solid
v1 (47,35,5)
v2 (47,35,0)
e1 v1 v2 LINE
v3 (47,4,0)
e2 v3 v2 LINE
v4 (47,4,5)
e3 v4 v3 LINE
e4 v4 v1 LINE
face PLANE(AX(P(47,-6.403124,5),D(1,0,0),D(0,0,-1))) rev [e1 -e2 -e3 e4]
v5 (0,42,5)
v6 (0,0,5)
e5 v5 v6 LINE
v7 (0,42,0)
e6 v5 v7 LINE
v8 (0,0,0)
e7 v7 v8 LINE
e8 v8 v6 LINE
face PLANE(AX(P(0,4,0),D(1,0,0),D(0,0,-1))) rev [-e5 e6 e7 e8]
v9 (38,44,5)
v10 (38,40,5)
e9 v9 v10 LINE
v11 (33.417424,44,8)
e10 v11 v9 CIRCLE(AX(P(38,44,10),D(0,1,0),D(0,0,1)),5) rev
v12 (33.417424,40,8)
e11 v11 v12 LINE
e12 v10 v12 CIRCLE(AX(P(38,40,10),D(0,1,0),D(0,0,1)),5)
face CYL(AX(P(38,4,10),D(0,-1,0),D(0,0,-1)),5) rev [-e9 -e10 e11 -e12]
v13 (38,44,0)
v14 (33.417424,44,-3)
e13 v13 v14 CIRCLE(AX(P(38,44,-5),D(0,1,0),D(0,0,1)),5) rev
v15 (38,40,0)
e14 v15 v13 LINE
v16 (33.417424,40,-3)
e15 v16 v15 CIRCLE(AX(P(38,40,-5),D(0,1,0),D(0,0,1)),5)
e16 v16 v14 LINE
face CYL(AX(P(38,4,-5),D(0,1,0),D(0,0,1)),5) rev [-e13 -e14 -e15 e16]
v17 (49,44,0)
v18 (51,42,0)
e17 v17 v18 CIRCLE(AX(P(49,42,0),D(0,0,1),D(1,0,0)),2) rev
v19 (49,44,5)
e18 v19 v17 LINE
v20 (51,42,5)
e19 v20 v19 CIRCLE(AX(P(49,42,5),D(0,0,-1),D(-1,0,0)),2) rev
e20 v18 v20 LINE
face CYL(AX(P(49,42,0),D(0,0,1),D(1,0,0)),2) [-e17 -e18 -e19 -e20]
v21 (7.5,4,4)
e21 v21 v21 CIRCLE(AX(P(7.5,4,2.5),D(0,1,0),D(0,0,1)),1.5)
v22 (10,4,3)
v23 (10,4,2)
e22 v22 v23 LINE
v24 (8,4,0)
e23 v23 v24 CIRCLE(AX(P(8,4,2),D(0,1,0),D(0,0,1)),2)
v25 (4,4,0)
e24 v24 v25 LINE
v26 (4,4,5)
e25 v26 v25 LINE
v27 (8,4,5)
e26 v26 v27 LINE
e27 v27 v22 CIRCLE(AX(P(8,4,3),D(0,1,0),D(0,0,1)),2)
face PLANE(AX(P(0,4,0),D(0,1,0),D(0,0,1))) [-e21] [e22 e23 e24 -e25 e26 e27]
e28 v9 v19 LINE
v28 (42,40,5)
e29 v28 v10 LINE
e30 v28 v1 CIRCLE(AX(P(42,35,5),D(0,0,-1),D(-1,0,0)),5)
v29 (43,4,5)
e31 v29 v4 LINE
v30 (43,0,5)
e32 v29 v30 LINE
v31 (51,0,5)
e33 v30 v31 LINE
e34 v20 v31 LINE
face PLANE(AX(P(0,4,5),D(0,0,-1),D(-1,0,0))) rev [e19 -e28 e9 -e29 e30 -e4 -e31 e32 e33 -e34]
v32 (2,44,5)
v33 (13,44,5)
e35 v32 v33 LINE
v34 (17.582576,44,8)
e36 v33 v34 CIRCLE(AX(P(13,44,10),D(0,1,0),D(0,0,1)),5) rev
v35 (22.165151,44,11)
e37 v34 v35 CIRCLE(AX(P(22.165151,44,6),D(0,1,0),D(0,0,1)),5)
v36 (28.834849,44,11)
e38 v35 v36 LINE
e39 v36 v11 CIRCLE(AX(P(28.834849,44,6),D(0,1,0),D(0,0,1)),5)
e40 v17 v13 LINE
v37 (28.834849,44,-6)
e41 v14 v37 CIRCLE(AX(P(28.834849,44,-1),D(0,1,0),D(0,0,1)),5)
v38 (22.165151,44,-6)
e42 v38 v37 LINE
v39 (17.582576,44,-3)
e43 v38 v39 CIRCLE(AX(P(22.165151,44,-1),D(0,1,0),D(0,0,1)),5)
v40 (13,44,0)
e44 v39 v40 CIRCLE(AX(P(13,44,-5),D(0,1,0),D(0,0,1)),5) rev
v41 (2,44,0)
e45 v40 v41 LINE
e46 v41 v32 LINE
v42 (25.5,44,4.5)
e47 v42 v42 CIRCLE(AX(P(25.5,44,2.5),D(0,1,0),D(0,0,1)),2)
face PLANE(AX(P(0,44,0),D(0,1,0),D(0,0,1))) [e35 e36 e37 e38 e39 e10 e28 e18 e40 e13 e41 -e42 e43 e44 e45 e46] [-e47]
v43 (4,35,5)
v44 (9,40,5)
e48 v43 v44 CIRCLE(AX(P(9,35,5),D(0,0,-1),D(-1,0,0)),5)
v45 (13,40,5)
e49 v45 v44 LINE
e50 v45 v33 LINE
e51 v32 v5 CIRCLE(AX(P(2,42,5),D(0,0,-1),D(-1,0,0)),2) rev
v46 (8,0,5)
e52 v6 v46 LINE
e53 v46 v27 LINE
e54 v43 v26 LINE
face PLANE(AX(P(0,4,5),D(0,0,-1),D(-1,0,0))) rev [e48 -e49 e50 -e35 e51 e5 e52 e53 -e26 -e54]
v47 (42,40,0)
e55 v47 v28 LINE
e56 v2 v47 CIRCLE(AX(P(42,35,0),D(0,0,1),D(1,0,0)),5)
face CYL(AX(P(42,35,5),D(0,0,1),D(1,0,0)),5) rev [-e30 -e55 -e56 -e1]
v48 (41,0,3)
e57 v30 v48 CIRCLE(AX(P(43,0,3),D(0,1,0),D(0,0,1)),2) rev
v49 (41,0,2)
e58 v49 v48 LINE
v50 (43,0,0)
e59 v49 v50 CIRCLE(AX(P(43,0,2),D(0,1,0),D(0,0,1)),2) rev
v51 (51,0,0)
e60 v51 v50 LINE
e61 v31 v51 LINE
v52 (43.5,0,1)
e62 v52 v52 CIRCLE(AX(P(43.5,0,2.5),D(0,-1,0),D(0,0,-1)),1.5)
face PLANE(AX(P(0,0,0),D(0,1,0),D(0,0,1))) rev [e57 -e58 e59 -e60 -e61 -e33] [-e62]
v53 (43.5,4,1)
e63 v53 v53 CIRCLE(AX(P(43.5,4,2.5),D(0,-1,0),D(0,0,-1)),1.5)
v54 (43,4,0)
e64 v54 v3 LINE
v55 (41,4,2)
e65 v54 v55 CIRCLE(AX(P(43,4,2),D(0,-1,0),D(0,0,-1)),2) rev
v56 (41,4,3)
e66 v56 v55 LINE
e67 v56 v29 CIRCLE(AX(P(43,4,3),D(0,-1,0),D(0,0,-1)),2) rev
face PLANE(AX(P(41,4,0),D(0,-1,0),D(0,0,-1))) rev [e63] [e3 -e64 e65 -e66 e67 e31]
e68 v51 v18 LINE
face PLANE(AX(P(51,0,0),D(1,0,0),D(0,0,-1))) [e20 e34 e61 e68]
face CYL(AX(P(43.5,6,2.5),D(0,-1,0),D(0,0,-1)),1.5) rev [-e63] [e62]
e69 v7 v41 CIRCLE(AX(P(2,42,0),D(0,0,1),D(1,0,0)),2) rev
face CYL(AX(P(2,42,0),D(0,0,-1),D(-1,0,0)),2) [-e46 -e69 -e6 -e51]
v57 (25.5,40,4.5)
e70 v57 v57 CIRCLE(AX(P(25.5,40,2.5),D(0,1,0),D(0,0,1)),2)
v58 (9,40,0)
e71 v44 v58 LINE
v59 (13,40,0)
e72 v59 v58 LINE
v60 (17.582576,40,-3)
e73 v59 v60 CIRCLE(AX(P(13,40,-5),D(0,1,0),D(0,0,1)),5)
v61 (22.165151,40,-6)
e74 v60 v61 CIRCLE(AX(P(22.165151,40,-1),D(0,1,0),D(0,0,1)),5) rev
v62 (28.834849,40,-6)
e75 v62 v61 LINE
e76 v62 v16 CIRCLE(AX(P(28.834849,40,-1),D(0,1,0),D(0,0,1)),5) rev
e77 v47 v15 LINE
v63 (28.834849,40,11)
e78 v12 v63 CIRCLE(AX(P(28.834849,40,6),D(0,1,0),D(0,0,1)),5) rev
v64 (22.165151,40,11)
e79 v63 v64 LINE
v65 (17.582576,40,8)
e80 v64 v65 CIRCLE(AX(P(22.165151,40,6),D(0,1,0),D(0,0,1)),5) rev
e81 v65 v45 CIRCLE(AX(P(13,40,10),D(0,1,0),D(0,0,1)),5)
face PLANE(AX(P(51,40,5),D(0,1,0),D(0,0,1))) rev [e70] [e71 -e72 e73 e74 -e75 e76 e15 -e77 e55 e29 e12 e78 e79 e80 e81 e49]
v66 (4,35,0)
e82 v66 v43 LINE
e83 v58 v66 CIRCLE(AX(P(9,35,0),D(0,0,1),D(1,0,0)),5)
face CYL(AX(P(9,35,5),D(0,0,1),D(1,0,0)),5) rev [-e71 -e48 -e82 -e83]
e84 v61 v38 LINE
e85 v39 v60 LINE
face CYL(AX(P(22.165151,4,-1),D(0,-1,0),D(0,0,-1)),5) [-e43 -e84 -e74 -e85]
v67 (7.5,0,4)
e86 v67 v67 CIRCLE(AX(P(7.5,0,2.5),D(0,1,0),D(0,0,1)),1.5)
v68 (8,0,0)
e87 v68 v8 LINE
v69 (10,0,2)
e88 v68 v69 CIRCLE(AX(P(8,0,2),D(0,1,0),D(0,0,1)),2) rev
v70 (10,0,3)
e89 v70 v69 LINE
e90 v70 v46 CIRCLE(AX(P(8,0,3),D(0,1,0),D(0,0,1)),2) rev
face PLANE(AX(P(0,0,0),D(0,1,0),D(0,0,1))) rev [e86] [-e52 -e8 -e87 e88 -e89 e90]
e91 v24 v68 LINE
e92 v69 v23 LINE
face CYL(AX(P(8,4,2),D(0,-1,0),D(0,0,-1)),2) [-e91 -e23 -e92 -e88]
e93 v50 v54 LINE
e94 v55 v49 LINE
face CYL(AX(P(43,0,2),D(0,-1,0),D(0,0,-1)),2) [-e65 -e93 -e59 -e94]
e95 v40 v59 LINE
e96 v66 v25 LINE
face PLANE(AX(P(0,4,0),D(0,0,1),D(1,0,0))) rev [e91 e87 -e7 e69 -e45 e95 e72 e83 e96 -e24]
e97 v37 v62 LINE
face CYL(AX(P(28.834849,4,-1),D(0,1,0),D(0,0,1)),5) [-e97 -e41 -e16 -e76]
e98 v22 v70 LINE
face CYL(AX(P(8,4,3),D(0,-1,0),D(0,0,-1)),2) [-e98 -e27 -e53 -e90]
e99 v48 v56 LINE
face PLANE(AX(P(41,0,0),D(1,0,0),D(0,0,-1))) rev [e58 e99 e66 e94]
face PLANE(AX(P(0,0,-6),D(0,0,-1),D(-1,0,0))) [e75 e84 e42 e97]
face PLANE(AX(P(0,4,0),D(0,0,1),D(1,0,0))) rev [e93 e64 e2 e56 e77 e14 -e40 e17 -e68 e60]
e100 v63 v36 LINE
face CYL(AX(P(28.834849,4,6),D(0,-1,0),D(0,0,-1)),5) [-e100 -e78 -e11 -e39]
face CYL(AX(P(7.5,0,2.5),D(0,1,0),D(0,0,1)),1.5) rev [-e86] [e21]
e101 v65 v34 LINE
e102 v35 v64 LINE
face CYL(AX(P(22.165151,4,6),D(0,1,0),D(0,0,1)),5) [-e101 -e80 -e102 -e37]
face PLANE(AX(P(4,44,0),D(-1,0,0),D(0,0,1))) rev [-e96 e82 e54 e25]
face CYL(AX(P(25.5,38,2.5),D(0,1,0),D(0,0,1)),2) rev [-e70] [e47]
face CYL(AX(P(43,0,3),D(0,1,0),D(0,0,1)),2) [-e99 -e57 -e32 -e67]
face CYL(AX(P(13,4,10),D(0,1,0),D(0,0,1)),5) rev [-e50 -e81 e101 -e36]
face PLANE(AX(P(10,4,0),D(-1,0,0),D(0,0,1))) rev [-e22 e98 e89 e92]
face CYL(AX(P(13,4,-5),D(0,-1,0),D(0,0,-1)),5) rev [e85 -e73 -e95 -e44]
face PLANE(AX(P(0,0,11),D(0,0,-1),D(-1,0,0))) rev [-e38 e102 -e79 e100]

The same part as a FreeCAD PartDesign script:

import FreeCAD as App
import Part
import Sketcher

V = App.Vector


def edges_at(feature, points):
    """Names of the edges that pass closest to the given points."""
    edges = feature.Shape.Edges
    near = lambda p: min(range(len(edges)), key=lambda i: edges[i].distToShape(Part.Vertex(*p))[0])
    return sorted({f"Edge{near(p) + 1}" for p in points})


def add_polygon(sketch, points):
    """Adds a closed chain of lines whose ends are joined by coincident constraints."""
    first, n = sketch.GeometryCount, len(points)
    for a, b in zip(points, points[1:] + points[:1]):
        sketch.addGeometry(Part.LineSegment(App.Vector(*a, 0), App.Vector(*b, 0)), False)
    for i in range(n):
        sketch.addConstraint(Sketcher.Constraint("Coincident", first + i, 2, first + (i + 1) % n, 1))

doc = App.newDocument("Part")
body = doc.addObject("PartDesign::Body", "Body")

# Sketch on XZ plane
sketch1 = doc.addObject("Sketcher::SketchObject", "Sketch")
body.addObject(sketch1)
sketch1.AttachmentSupport = (doc.XZ_Plane, [""])
sketch1.MapMode = "FlatFace"
add_polygon(sketch1, [(0, 0), (0, 5), (10, 5), (10, 0)])  # lines 0-3
sketch1.addConstraint([
    Sketcher.Constraint("Vertical", 0),
    Sketcher.Constraint("Horizontal", 1),
    Sketcher.Constraint("Vertical", 2),
    Sketcher.Constraint("Horizontal", 3),
    Sketcher.Constraint("Coincident", 3, 2, -1, 1),
    Sketcher.Constraint("DistanceX", 1, 1, 1, 2, 10.0),
    Sketcher.Constraint("DistanceY", 0, 1, 0, 2, 5.0),
])
pad1 = doc.addObject("PartDesign::Pad", "Pad")
body.addObject(pad1)
pad1.Profile = sketch1
pad1.Length = 4
pad1.Reversed = True

# Sketch on XZ plane
sketch2 = doc.addObject("Sketcher::SketchObject", "Sketch001")
body.addObject(sketch2)
sketch2.AttachmentSupport = (doc.XZ_Plane, [""])
sketch2.MapMode = "FlatFace"
sketch2.AttachmentOffset = App.Placement(V(0, 0, -4), App.Rotation())
sketch2.addGeometry(Part.Circle(V(7.5, 2.5, 0), V(0, 0, 1), 1.5), False)
sketch2.addConstraint([
    Sketcher.Constraint("Diameter", 0, 3.0),
    Sketcher.Constraint("DistanceX", -1, 1, 0, 3, 7.5),
    Sketcher.Constraint("DistanceY", -1, 1, 0, 3, 2.5),
])
pocket1 = doc.addObject("PartDesign::Pocket", "Pocket")
body.addObject(pocket1)
pocket1.Profile = sketch2
pocket1.Length = 4
pocket1.Reversed = True

# Sketch on XZ plane
sketch3 = doc.addObject("Sketcher::SketchObject", "Sketch002")
body.addObject(sketch3)
sketch3.AttachmentSupport = (doc.XZ_Plane, [""])
sketch3.MapMode = "FlatFace"
sketch3.AttachmentOffset = App.Placement(V(0, 0, -4), App.Rotation())
add_polygon(sketch3, [(0, 0), (0, 5), (4, 5), (4, 0)])  # lines 0-3
sketch3.addConstraint([
    Sketcher.Constraint("Vertical", 0),
    Sketcher.Constraint("Horizontal", 1),
    Sketcher.Constraint("Vertical", 2),
    Sketcher.Constraint("Horizontal", 3),
    Sketcher.Constraint("Coincident", 3, 2, -1, 1),
    Sketcher.Constraint("DistanceX", 1, 1, 1, 2, 4.0),
    Sketcher.Constraint("DistanceY", 0, 1, 0, 2, 5.0),
])
pad2 = doc.addObject("PartDesign::Pad", "Pad001")
body.addObject(pad2)
pad2.Profile = sketch3
pad2.Length = 40
pad2.Reversed = True

# Sketch on YZ plane
sketch4 = doc.addObject("Sketcher::SketchObject", "Sketch003")
body.addObject(sketch4)
sketch4.AttachmentSupport = (doc.YZ_Plane, [""])
sketch4.MapMode = "FlatFace"
sketch4.AttachmentOffset = App.Placement(V(0, 0, 4), App.Rotation())
add_polygon(sketch4, [(44, 5), (40, 5), (40, 0), (44, 0)])  # lines 0-3
sketch4.addConstraint([
    Sketcher.Constraint("Horizontal", 0),
    Sketcher.Constraint("Vertical", 1),
    Sketcher.Constraint("Horizontal", 2),
    Sketcher.Constraint("Vertical", 3),
    Sketcher.Constraint("PointOnObject", 1, 2, -1),
    Sketcher.Constraint("DistanceX", 0, 2, 0, 1, 4.0),
    Sketcher.Constraint("DistanceY", 1, 2, 1, 1, 5.0),
    Sketcher.Constraint("DistanceX", -1, 1, 0, 2, 40.0),
])
pad3 = doc.addObject("PartDesign::Pad", "Pad002")
body.addObject(pad3)
pad3.Profile = sketch4
pad3.Length = 47

# Sketch on XZ plane
sketch5 = doc.addObject("Sketcher::SketchObject", "Sketch004")
body.addObject(sketch5)
sketch5.AttachmentSupport = (doc.XZ_Plane, [""])
sketch5.MapMode = "FlatFace"
sketch5.AttachmentOffset = App.Placement(V(0, 0, -40), App.Rotation())
add_polygon(sketch5, [(51, 0), (51, 5), (47, 5), (47, 0)])  # lines 0-3
sketch5.addConstraint([
    Sketcher.Constraint("Vertical", 0),
    Sketcher.Constraint("Horizontal", 1),
    Sketcher.Constraint("Vertical", 2),
    Sketcher.Constraint("Horizontal", 3),
    Sketcher.Constraint("PointOnObject", 2, 2, -1),
    Sketcher.Constraint("DistanceX", 1, 2, 1, 1, 4.0),
    Sketcher.Constraint("DistanceY", 0, 1, 0, 2, 5.0),
    Sketcher.Constraint("DistanceX", -1, 1, 0, 2, 51.0),
])
pad4 = doc.addObject("PartDesign::Pad", "Pad003")
body.addObject(pad4)
pad4.Profile = sketch5
pad4.Length = 40

# Sketch on YZ plane
sketch6 = doc.addObject("Sketcher::SketchObject", "Sketch005")
body.addObject(sketch6)
sketch6.AttachmentSupport = (doc.YZ_Plane, [""])
sketch6.MapMode = "FlatFace"
sketch6.AttachmentOffset = App.Placement(V(0, 0, 47), App.Rotation())
add_polygon(sketch6, [(4, 0), (0, 0), (0, 5), (4, 5)])  # lines 0-3
sketch6.addConstraint([
    Sketcher.Constraint("Horizontal", 0),
    Sketcher.Constraint("Vertical", 1),
    Sketcher.Constraint("Horizontal", 2),
    Sketcher.Constraint("Vertical", 3),
    Sketcher.Constraint("Coincident", 0, 2, -1, 1),
    Sketcher.Constraint("DistanceX", 0, 2, 0, 1, 4.0),
    Sketcher.Constraint("DistanceY", 1, 1, 1, 2, 5.0),
])
pad5 = doc.addObject("PartDesign::Pad", "Pad004")
body.addObject(pad5)
pad5.Profile = sketch6
pad5.Length = 6
pad5.Reversed = True

# Sketch on XZ plane
sketch7 = doc.addObject("Sketcher::SketchObject", "Sketch006")
body.addObject(sketch7)
sketch7.AttachmentSupport = (doc.XZ_Plane, [""])
sketch7.MapMode = "FlatFace"
sketch7.addGeometry(Part.Circle(V(43.5, 2.5, 0), V(0, 0, 1), 1.5), False)
sketch7.addConstraint([
    Sketcher.Constraint("Diameter", 0, 3.0),
    Sketcher.Constraint("DistanceX", -1, 1, 0, 3, 43.5),
    Sketcher.Constraint("DistanceY", -1, 1, 0, 3, 2.5),
])
pocket2 = doc.addObject("PartDesign::Pocket", "Pocket001")
body.addObject(pocket2)
pocket2.Profile = sketch7
pocket2.Length = 6

# Sketch on XY plane
sketch8 = doc.addObject("Sketcher::SketchObject", "Sketch007")
body.addObject(sketch8)
sketch8.AttachmentSupport = (doc.XY_Plane, [""])
sketch8.MapMode = "FlatFace"
add_polygon(sketch8, [(33, 44), (33, 40), (18, 40), (18, 44)])  # lines 0-3
sketch8.addConstraint([
    Sketcher.Constraint("Vertical", 0),
    Sketcher.Constraint("Horizontal", 1),
    Sketcher.Constraint("Vertical", 2),
    Sketcher.Constraint("Horizontal", 3),
    Sketcher.Constraint("DistanceX", 1, 2, 1, 1, 15.0),
    Sketcher.Constraint("DistanceY", 0, 2, 0, 1, 4.0),
    Sketcher.Constraint("DistanceX", -1, 1, 0, 2, 33.0),
    Sketcher.Constraint("DistanceY", -1, 1, 0, 2, 40.0),
])
pad6 = doc.addObject("PartDesign::Pad", "Pad005")
body.addObject(pad6)
pad6.Profile = sketch8
pad6.Type = "TwoLengths"
pad6.Length = 6
pad6.Length2 = 11
pad6.Reversed = True
doc.recompute()

fillet = doc.addObject("PartDesign::Fillet", "Fillet")
body.addObject(fillet)
fillet.Base = (pad6, edges_at(pad6, [
    (33, 42, 5),
    (33, 42, 0),
    (18, 42, 5),
    (18, 42, 0),
]))
fillet.Radius = 5

# Sketch on XZ plane
sketch9 = doc.addObject("Sketcher::SketchObject", "Sketch008")
body.addObject(sketch9)
sketch9.AttachmentSupport = (doc.XZ_Plane, [""])
sketch9.MapMode = "FlatFace"
sketch9.AttachmentOffset = App.Placement(V(0, 0, -44), App.Rotation())
sketch9.addGeometry(Part.Circle(V(25.5, 2.5, 0), V(0, 0, 1), 2), False)
sketch9.addConstraint([
    Sketcher.Constraint("Diameter", 0, 4.0),
    Sketcher.Constraint("DistanceX", -1, 1, 0, 3, 25.5),
    Sketcher.Constraint("DistanceY", -1, 1, 0, 3, 2.5),
])
pocket3 = doc.addObject("PartDesign::Pocket", "Pocket002")
body.addObject(pocket3)
pocket3.Profile = sketch9
pocket3.Length = 6
pocket3.Reversed = True
doc.recompute()

fillet2 = doc.addObject("PartDesign::Fillet", "Fillet001")
body.addObject(fillet2)
fillet2.Base = (pocket3, edges_at(pocket3, [
    (18, 42, -6),
    (33, 42, -6),
    (33, 42, 11),
    (18, 42, 11),
]))
fillet2.Radius = 5
doc.recompute()

fillet3 = doc.addObject("PartDesign::Fillet", "Fillet002")
body.addObject(fillet3)
fillet3.Base = (fillet2, edges_at(fillet2, [(4, 40, 2.5), (47, 40, 2.5)]))
fillet3.Radius = 5
doc.recompute()

fillet4 = doc.addObject("PartDesign::Fillet", "Fillet003")
body.addObject(fillet4)
fillet4.Base = (fillet3, edges_at(fillet3, [(10, 2, 0), (10, 2, 5)]))
fillet4.Radius = 2
doc.recompute()

fillet5 = doc.addObject("PartDesign::Fillet", "Fillet004")
body.addObject(fillet5)
fillet5.Base = (fillet4, edges_at(fillet4, [
    (0, 44, 2.5),
    (51, 44, 2.5),
    (41, 2, 0),
    (41, 2, 5),
]))
fillet5.Radius = 2

doc.recompute()
